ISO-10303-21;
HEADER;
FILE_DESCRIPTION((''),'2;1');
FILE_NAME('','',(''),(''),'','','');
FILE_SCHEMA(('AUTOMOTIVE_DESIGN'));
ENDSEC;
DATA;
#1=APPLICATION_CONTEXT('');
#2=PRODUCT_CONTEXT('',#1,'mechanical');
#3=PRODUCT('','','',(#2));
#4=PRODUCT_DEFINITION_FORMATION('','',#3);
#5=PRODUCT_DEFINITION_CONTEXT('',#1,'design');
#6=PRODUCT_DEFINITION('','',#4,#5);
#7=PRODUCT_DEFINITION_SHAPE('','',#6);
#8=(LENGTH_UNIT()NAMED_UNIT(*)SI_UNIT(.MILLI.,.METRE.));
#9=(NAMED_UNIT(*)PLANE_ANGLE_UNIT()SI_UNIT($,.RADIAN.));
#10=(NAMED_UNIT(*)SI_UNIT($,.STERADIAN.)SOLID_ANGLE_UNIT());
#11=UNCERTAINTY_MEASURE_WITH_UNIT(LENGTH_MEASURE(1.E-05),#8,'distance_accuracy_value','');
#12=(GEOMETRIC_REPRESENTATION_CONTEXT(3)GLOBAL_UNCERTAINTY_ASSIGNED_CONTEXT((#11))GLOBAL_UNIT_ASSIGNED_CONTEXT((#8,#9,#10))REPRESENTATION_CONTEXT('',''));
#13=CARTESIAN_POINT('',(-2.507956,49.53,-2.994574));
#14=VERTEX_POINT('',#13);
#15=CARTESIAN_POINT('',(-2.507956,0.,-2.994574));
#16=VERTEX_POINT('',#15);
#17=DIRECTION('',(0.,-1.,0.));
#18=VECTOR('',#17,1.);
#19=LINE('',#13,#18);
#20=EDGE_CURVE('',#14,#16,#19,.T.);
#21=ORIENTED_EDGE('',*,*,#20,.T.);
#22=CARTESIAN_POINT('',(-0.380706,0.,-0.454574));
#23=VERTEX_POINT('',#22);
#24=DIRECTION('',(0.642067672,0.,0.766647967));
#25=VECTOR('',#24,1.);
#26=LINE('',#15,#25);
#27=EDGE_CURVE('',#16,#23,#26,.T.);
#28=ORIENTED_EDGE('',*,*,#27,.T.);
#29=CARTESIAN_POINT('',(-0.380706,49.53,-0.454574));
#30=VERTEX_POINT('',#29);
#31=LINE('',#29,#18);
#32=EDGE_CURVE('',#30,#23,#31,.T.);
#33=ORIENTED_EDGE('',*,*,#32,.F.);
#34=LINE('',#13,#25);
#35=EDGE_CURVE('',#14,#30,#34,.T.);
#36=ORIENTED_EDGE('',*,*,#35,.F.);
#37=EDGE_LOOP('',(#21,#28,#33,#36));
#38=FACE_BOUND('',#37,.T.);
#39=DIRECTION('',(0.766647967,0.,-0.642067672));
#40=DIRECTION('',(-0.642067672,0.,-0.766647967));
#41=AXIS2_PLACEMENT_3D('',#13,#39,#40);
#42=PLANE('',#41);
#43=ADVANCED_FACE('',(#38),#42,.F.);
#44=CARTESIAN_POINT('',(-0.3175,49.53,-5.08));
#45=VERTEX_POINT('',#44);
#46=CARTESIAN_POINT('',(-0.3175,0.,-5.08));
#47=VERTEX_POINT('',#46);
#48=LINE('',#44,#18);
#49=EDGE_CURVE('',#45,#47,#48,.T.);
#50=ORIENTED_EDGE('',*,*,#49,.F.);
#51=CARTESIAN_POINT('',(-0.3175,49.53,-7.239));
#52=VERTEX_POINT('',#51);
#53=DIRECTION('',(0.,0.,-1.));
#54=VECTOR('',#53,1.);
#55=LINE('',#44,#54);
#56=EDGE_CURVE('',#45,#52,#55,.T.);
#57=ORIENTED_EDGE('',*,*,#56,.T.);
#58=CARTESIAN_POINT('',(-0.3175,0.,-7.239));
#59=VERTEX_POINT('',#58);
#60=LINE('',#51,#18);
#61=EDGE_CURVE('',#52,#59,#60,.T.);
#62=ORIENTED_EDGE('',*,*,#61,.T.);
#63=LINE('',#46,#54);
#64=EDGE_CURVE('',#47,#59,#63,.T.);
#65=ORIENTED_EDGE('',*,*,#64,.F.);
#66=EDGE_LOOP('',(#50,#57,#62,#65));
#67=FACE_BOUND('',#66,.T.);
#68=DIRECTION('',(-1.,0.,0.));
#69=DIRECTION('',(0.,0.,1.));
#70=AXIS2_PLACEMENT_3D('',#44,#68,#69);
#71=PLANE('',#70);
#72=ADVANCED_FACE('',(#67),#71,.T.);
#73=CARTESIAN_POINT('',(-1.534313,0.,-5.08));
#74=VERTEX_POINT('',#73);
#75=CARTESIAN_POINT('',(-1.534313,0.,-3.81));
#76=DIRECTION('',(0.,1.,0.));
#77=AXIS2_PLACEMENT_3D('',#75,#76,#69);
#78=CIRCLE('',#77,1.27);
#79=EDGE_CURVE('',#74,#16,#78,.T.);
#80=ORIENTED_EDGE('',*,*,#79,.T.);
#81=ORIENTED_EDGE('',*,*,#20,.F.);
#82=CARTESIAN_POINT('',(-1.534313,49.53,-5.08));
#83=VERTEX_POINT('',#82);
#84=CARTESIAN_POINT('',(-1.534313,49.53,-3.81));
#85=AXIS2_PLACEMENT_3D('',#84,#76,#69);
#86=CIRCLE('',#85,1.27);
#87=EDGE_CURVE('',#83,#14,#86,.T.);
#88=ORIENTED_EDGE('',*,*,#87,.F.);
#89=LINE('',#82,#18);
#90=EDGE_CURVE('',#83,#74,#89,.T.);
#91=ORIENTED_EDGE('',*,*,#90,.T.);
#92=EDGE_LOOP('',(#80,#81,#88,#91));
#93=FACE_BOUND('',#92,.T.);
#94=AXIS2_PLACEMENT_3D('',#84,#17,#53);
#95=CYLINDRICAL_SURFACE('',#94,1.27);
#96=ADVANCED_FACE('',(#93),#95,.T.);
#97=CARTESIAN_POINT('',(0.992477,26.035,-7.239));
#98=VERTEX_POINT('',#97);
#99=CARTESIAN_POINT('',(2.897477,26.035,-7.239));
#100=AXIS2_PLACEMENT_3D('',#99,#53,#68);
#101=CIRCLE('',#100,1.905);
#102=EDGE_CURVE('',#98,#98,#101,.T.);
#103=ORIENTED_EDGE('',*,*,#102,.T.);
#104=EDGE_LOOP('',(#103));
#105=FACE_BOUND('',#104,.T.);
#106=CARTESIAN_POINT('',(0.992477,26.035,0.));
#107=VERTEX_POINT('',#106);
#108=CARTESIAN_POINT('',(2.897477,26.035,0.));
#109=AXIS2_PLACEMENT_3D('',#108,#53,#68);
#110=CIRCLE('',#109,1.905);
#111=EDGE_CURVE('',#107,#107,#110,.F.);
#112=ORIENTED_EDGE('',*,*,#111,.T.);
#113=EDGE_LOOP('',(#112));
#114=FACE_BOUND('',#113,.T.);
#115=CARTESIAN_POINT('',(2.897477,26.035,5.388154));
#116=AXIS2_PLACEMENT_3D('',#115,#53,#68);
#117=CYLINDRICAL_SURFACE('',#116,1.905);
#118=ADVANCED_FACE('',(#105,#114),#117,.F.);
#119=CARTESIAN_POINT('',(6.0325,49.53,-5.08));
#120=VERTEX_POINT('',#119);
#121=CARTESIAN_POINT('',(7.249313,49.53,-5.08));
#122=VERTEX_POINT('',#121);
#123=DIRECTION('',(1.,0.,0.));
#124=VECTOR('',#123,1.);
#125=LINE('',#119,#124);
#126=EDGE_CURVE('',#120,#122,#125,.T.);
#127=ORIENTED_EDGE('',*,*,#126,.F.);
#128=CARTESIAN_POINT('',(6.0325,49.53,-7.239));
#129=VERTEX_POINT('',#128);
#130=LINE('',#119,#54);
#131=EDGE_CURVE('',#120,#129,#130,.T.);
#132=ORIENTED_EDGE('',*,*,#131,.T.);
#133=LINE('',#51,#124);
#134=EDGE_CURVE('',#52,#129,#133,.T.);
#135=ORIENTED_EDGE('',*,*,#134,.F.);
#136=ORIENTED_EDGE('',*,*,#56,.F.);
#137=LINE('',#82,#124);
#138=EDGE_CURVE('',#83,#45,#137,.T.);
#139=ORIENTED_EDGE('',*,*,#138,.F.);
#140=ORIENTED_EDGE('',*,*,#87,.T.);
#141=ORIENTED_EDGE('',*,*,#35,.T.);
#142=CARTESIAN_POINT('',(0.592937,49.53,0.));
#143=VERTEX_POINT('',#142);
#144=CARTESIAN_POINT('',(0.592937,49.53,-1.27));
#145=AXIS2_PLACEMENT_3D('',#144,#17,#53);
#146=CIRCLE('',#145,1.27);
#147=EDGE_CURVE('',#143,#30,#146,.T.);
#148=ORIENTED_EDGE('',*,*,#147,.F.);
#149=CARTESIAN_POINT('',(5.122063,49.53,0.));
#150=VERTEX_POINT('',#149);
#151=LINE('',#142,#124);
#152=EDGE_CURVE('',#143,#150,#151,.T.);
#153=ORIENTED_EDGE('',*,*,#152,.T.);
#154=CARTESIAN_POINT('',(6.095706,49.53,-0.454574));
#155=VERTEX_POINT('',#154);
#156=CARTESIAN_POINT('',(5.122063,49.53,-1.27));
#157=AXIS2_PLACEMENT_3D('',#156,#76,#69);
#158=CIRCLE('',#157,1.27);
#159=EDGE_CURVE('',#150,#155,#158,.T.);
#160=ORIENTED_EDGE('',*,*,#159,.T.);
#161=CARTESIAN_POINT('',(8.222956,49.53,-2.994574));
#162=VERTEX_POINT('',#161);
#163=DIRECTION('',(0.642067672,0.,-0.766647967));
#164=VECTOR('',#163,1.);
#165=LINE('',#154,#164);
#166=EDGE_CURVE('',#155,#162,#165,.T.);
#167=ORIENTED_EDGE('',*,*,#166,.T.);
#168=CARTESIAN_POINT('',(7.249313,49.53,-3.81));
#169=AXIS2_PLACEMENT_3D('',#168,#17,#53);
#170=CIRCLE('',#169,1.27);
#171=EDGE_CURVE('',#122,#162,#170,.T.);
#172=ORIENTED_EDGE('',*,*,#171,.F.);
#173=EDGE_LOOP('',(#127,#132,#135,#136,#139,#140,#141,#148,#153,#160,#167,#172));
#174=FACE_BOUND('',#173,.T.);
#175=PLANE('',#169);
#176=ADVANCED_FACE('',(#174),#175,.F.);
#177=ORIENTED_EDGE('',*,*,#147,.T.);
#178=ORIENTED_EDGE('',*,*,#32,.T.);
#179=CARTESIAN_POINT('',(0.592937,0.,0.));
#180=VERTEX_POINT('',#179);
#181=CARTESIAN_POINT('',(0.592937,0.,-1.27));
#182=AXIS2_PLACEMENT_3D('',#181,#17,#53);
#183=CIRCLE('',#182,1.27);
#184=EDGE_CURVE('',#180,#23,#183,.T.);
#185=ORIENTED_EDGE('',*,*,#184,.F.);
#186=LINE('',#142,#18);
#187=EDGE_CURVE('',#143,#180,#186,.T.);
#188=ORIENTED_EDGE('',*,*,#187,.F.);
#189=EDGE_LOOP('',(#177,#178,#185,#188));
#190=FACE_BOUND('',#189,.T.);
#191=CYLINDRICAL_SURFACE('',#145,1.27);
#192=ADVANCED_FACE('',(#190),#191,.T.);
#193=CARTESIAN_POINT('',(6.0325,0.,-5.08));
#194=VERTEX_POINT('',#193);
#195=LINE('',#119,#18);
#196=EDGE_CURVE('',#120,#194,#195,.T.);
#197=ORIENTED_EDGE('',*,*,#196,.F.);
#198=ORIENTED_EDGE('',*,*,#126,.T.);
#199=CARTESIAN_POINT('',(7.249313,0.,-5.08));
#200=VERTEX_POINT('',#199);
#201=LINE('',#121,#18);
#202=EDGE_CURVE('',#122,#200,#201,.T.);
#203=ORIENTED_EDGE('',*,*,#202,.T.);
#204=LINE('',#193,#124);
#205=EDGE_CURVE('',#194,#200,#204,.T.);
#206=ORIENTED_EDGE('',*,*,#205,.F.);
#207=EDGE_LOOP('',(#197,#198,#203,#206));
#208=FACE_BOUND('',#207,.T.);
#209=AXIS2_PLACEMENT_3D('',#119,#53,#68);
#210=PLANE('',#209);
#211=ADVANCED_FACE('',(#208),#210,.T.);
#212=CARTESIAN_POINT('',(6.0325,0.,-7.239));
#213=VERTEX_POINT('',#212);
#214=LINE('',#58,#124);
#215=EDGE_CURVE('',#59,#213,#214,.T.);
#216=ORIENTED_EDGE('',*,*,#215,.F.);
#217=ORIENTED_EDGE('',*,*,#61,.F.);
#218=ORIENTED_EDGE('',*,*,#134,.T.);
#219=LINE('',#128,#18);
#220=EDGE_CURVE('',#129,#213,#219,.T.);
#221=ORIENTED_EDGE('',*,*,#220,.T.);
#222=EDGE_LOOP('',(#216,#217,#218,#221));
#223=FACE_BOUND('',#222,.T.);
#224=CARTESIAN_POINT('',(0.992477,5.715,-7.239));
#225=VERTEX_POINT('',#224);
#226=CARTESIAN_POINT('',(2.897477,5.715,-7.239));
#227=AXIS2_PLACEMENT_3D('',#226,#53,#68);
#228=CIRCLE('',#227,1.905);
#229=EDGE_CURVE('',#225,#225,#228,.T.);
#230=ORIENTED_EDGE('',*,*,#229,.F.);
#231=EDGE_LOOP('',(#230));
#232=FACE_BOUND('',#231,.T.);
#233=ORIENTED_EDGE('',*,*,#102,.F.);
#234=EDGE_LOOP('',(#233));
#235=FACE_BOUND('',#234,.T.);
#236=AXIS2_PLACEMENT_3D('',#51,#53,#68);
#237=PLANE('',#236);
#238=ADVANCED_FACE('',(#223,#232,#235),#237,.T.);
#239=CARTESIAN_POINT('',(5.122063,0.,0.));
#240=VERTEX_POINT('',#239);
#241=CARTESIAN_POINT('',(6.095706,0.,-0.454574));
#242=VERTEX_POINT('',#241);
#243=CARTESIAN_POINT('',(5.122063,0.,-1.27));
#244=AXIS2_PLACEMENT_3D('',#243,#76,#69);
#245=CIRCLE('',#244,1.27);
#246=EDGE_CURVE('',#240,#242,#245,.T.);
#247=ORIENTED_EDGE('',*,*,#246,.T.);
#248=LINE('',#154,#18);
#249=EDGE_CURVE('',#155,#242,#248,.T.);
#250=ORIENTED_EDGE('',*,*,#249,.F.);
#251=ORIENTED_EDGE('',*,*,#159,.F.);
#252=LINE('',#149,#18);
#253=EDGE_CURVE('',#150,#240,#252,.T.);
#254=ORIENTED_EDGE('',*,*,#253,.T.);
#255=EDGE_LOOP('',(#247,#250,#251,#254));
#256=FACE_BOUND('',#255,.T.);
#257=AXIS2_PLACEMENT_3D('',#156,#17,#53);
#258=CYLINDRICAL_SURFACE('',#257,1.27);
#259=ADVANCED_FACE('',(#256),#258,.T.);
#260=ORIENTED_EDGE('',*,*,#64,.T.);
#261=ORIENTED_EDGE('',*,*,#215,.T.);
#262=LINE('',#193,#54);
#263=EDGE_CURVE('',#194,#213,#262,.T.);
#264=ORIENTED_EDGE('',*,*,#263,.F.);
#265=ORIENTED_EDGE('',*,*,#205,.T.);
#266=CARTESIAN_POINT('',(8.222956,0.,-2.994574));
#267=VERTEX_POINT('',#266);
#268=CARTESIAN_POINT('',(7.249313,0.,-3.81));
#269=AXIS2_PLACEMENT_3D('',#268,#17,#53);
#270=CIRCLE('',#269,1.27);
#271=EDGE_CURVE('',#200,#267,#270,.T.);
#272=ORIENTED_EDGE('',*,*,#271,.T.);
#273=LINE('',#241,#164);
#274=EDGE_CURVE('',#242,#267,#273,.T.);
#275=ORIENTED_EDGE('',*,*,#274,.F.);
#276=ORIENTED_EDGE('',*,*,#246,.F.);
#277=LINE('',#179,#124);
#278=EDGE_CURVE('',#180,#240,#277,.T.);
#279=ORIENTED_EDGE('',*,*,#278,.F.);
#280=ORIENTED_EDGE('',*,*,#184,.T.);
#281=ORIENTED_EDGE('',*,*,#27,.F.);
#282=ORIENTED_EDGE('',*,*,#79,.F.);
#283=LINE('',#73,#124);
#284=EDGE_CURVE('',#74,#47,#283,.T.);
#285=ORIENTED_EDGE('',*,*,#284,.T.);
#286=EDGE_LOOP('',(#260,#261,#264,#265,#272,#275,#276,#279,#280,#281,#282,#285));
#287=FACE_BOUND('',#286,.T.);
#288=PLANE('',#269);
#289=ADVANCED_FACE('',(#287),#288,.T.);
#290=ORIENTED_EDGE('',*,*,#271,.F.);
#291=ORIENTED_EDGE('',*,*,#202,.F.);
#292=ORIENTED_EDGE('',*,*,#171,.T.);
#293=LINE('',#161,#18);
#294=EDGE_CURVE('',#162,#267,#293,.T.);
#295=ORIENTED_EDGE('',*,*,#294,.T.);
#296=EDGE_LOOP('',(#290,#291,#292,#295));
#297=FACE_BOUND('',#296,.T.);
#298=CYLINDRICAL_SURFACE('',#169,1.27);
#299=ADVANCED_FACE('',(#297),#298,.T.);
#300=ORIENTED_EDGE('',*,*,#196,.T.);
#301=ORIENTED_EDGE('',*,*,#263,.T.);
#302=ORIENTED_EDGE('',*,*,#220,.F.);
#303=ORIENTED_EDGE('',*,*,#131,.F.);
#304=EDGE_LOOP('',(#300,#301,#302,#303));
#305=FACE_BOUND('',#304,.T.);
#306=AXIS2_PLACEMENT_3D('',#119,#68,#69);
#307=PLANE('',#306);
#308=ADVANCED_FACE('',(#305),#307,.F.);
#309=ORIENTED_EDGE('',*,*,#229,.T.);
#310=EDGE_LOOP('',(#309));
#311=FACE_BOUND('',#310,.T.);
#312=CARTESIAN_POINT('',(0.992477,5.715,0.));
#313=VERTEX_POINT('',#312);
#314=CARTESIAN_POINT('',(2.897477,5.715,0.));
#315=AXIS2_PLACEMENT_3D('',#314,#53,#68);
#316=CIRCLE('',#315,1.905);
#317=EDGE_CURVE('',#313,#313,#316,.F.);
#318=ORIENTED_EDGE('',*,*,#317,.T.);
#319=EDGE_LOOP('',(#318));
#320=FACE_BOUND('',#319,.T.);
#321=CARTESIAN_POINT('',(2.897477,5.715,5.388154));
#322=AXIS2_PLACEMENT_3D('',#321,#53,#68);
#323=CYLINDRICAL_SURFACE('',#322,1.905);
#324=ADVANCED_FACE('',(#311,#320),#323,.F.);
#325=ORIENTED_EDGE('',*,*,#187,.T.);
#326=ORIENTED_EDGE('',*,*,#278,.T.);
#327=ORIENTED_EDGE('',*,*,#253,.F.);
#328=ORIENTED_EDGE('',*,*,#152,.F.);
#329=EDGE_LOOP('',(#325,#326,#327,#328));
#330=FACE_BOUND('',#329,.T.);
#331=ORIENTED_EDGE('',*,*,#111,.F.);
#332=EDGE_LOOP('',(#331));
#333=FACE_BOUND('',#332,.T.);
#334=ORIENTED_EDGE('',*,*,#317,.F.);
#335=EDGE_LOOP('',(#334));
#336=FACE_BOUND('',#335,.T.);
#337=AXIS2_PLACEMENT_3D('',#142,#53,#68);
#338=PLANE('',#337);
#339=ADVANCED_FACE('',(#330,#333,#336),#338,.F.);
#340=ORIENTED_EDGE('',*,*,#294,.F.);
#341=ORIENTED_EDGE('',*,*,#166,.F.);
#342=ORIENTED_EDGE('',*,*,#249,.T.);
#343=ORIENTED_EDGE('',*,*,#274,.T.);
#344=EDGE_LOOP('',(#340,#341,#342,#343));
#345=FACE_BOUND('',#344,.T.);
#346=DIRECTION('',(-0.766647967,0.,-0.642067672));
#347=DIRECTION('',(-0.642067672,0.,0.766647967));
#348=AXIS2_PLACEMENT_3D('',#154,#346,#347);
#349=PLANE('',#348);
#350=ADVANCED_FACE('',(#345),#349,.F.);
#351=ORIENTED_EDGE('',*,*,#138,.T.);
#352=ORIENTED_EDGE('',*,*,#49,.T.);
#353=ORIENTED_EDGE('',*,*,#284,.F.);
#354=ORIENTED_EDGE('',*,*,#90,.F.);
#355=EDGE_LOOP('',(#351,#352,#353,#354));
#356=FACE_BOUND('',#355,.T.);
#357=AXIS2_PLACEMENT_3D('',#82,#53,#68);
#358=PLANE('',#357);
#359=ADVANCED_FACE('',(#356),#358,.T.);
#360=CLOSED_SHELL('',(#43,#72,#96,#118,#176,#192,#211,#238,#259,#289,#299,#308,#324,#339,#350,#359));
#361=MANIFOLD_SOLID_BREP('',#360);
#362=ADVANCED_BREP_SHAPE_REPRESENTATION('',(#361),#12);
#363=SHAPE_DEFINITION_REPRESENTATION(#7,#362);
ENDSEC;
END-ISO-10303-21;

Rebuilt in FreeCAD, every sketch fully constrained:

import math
import FreeCAD as App
import Part
import Sketcher
from FreeCAD import Vector
Q = App.Units.Quantity

doc = App.newDocument("Part")
body = doc.addObject("PartDesign::Body", "Body")

# Sketch on XZ plane
sketch1 = body.newObject("Sketcher::SketchObject", "Sketch")
sketch1.AttachmentSupport = (doc.getObject("XZ_Plane"), [""])
sketch1.MapMode = "FlatFace"
sketch1.addGeometry([
    Part.LineSegment(Vector(0.6, 0, 0), Vector(5.1, 0, 0)),  # 0
    Part.ArcOfCircle(Part.Circle(Vector(5.1, -1.3, 0), Vector(0, 0, 1), 1.3), math.radians(40), math.radians(90)),  # 1
    Part.LineSegment(Vector(6.1, -0.5, 0), Vector(8.2, -3, 0)),  # 2
    Part.ArcOfCircle(Part.Circle(Vector(7.2, -3.8, 0), Vector(0, 0, 1), 1.3), math.radians(-90), math.radians(40)),  # 3
    Part.LineSegment(Vector(7.2, -5.1, 0), Vector(6, -5.1, 0)),  # 4
    Part.LineSegment(Vector(6, -5.1, 0), Vector(6, -7.2, 0)),  # 5
    Part.LineSegment(Vector(6, -7.2, 0), Vector(-0.3, -7.2, 0)),  # 6
    Part.LineSegment(Vector(-0.3, -7.2, 0), Vector(-0.3, -5.1, 0)),  # 7
    Part.LineSegment(Vector(-0.3, -5.1, 0), Vector(-1.5, -5.1, 0)),  # 8
    Part.ArcOfCircle(Part.Circle(Vector(-1.5, -3.8, 0), Vector(0, 0, 1), 1.3), math.radians(140), math.radians(270)),  # 9
    Part.LineSegment(Vector(-2.5, -3, 0), Vector(-0.4, -0.5, 0)),  # 10
    Part.ArcOfCircle(Part.Circle(Vector(0.6, -1.3, 0), Vector(0, 0, 1), 1.3), math.radians(90), math.radians(140)),  # 11
], False)
sketch1.addConstraint([
    Sketcher.Constraint("Tangent", 0, 2, 1, 2),
    Sketcher.Constraint("Tangent", 1, 1, 2, 1),
    Sketcher.Constraint("Tangent", 2, 2, 3, 2),
    Sketcher.Constraint("Tangent", 3, 1, 4, 1),
    Sketcher.Constraint("Coincident", 4, 2, 5, 1),
    Sketcher.Constraint("Coincident", 5, 2, 6, 1),
    Sketcher.Constraint("Coincident", 6, 2, 7, 1),
    Sketcher.Constraint("Coincident", 7, 2, 8, 1),
    Sketcher.Constraint("Tangent", 8, 2, 9, 2),
    Sketcher.Constraint("Tangent", 9, 1, 10, 1),
    Sketcher.Constraint("Tangent", 10, 2, 11, 2),
    Sketcher.Constraint("Tangent", 11, 1, 0, 1),
    Sketcher.Constraint("Horizontal", 0),
    Sketcher.Constraint("Horizontal", 4),
    Sketcher.Constraint("Vertical", 5),
    Sketcher.Constraint("Horizontal", 6),
    Sketcher.Constraint("Vertical", 7),
    Sketcher.Constraint("Horizontal", 8),
    Sketcher.Constraint("Equal", 1, 3),
    Sketcher.Constraint("Equal", 3, 9),
    Sketcher.Constraint("Equal", 9, 11),
    Sketcher.Constraint("PointOnObject", 0, 2, -1),
    Sketcher.Constraint("Horizontal", 3, 3, 9, 3),
    Sketcher.Constraint("Horizontal", 2, 2, 9, 1),
    Sketcher.Constraint("Equal", 4, 8),
    Sketcher.Constraint("Radius", 1, Q("0.05 in")),
    Sketcher.Constraint("DistanceX", 6, 2, 6, 1, Q("0.25 in")),
    Sketcher.Constraint("DistanceY", 3, 1, -1, 1, Q("0.2 in")),
    Sketcher.Constraint("DistanceY", 5, 2, 5, 1, Q("0.085 in")),
    Sketcher.Constraint("DistanceX", -1, 1, 4, 2, Q("0.2375 in")),
    Sketcher.Constraint("DistanceX", 0, 1, 0, 2, Q("4.529126 mm")),
    Sketcher.Constraint("DistanceX", 4, 2, 4, 1, Q("1.216813 mm")),
])
pad1 = body.newObject("PartDesign::Pad", "Pad")
pad1.Profile = sketch1
pad1.Length = Q("1.95 in")
pad1.Reversed = True

# Sketch on XY plane
sketch2 = body.newObject("Sketcher::SketchObject", "Sketch001")
sketch2.AttachmentSupport = (doc.getObject("XY_Plane"), [""])
sketch2.MapMode = "FlatFace"
sketch2.AttachmentOffset = App.Placement(Vector(0, 0, -0.285 * 25.4), App.Rotation())
sketch2.addGeometry([
    Part.Circle(Vector(2.9, 5.7, 0), Vector(0, 0, 1), 1.9),
    Part.Circle(Vector(2.9, 26, 0), Vector(0, 0, 1), 1.9),
], False)
sketch2.addConstraint([
    Sketcher.Constraint("Equal", 0, 1),
    Sketcher.Constraint("Vertical", 0, 3, 1, 3),
    Sketcher.Constraint("Diameter", 0, Q("0.15 in")),
    Sketcher.Constraint("DistanceY", 0, 3, 1, 3, Q("0.8 in")),
    Sketcher.Constraint("DistanceY", -1, 1, 0, 3, Q("0.225 in")),
    Sketcher.Constraint("DistanceX", -1, 1, 0, 3, Q("2.897477 mm")),
])
pocket1 = body.newObject("PartDesign::Pocket", "Pocket")
pocket1.Profile = sketch2
pocket1.Length = Q("0.285 in")
pocket1.Reversed = True

doc.recompute()
